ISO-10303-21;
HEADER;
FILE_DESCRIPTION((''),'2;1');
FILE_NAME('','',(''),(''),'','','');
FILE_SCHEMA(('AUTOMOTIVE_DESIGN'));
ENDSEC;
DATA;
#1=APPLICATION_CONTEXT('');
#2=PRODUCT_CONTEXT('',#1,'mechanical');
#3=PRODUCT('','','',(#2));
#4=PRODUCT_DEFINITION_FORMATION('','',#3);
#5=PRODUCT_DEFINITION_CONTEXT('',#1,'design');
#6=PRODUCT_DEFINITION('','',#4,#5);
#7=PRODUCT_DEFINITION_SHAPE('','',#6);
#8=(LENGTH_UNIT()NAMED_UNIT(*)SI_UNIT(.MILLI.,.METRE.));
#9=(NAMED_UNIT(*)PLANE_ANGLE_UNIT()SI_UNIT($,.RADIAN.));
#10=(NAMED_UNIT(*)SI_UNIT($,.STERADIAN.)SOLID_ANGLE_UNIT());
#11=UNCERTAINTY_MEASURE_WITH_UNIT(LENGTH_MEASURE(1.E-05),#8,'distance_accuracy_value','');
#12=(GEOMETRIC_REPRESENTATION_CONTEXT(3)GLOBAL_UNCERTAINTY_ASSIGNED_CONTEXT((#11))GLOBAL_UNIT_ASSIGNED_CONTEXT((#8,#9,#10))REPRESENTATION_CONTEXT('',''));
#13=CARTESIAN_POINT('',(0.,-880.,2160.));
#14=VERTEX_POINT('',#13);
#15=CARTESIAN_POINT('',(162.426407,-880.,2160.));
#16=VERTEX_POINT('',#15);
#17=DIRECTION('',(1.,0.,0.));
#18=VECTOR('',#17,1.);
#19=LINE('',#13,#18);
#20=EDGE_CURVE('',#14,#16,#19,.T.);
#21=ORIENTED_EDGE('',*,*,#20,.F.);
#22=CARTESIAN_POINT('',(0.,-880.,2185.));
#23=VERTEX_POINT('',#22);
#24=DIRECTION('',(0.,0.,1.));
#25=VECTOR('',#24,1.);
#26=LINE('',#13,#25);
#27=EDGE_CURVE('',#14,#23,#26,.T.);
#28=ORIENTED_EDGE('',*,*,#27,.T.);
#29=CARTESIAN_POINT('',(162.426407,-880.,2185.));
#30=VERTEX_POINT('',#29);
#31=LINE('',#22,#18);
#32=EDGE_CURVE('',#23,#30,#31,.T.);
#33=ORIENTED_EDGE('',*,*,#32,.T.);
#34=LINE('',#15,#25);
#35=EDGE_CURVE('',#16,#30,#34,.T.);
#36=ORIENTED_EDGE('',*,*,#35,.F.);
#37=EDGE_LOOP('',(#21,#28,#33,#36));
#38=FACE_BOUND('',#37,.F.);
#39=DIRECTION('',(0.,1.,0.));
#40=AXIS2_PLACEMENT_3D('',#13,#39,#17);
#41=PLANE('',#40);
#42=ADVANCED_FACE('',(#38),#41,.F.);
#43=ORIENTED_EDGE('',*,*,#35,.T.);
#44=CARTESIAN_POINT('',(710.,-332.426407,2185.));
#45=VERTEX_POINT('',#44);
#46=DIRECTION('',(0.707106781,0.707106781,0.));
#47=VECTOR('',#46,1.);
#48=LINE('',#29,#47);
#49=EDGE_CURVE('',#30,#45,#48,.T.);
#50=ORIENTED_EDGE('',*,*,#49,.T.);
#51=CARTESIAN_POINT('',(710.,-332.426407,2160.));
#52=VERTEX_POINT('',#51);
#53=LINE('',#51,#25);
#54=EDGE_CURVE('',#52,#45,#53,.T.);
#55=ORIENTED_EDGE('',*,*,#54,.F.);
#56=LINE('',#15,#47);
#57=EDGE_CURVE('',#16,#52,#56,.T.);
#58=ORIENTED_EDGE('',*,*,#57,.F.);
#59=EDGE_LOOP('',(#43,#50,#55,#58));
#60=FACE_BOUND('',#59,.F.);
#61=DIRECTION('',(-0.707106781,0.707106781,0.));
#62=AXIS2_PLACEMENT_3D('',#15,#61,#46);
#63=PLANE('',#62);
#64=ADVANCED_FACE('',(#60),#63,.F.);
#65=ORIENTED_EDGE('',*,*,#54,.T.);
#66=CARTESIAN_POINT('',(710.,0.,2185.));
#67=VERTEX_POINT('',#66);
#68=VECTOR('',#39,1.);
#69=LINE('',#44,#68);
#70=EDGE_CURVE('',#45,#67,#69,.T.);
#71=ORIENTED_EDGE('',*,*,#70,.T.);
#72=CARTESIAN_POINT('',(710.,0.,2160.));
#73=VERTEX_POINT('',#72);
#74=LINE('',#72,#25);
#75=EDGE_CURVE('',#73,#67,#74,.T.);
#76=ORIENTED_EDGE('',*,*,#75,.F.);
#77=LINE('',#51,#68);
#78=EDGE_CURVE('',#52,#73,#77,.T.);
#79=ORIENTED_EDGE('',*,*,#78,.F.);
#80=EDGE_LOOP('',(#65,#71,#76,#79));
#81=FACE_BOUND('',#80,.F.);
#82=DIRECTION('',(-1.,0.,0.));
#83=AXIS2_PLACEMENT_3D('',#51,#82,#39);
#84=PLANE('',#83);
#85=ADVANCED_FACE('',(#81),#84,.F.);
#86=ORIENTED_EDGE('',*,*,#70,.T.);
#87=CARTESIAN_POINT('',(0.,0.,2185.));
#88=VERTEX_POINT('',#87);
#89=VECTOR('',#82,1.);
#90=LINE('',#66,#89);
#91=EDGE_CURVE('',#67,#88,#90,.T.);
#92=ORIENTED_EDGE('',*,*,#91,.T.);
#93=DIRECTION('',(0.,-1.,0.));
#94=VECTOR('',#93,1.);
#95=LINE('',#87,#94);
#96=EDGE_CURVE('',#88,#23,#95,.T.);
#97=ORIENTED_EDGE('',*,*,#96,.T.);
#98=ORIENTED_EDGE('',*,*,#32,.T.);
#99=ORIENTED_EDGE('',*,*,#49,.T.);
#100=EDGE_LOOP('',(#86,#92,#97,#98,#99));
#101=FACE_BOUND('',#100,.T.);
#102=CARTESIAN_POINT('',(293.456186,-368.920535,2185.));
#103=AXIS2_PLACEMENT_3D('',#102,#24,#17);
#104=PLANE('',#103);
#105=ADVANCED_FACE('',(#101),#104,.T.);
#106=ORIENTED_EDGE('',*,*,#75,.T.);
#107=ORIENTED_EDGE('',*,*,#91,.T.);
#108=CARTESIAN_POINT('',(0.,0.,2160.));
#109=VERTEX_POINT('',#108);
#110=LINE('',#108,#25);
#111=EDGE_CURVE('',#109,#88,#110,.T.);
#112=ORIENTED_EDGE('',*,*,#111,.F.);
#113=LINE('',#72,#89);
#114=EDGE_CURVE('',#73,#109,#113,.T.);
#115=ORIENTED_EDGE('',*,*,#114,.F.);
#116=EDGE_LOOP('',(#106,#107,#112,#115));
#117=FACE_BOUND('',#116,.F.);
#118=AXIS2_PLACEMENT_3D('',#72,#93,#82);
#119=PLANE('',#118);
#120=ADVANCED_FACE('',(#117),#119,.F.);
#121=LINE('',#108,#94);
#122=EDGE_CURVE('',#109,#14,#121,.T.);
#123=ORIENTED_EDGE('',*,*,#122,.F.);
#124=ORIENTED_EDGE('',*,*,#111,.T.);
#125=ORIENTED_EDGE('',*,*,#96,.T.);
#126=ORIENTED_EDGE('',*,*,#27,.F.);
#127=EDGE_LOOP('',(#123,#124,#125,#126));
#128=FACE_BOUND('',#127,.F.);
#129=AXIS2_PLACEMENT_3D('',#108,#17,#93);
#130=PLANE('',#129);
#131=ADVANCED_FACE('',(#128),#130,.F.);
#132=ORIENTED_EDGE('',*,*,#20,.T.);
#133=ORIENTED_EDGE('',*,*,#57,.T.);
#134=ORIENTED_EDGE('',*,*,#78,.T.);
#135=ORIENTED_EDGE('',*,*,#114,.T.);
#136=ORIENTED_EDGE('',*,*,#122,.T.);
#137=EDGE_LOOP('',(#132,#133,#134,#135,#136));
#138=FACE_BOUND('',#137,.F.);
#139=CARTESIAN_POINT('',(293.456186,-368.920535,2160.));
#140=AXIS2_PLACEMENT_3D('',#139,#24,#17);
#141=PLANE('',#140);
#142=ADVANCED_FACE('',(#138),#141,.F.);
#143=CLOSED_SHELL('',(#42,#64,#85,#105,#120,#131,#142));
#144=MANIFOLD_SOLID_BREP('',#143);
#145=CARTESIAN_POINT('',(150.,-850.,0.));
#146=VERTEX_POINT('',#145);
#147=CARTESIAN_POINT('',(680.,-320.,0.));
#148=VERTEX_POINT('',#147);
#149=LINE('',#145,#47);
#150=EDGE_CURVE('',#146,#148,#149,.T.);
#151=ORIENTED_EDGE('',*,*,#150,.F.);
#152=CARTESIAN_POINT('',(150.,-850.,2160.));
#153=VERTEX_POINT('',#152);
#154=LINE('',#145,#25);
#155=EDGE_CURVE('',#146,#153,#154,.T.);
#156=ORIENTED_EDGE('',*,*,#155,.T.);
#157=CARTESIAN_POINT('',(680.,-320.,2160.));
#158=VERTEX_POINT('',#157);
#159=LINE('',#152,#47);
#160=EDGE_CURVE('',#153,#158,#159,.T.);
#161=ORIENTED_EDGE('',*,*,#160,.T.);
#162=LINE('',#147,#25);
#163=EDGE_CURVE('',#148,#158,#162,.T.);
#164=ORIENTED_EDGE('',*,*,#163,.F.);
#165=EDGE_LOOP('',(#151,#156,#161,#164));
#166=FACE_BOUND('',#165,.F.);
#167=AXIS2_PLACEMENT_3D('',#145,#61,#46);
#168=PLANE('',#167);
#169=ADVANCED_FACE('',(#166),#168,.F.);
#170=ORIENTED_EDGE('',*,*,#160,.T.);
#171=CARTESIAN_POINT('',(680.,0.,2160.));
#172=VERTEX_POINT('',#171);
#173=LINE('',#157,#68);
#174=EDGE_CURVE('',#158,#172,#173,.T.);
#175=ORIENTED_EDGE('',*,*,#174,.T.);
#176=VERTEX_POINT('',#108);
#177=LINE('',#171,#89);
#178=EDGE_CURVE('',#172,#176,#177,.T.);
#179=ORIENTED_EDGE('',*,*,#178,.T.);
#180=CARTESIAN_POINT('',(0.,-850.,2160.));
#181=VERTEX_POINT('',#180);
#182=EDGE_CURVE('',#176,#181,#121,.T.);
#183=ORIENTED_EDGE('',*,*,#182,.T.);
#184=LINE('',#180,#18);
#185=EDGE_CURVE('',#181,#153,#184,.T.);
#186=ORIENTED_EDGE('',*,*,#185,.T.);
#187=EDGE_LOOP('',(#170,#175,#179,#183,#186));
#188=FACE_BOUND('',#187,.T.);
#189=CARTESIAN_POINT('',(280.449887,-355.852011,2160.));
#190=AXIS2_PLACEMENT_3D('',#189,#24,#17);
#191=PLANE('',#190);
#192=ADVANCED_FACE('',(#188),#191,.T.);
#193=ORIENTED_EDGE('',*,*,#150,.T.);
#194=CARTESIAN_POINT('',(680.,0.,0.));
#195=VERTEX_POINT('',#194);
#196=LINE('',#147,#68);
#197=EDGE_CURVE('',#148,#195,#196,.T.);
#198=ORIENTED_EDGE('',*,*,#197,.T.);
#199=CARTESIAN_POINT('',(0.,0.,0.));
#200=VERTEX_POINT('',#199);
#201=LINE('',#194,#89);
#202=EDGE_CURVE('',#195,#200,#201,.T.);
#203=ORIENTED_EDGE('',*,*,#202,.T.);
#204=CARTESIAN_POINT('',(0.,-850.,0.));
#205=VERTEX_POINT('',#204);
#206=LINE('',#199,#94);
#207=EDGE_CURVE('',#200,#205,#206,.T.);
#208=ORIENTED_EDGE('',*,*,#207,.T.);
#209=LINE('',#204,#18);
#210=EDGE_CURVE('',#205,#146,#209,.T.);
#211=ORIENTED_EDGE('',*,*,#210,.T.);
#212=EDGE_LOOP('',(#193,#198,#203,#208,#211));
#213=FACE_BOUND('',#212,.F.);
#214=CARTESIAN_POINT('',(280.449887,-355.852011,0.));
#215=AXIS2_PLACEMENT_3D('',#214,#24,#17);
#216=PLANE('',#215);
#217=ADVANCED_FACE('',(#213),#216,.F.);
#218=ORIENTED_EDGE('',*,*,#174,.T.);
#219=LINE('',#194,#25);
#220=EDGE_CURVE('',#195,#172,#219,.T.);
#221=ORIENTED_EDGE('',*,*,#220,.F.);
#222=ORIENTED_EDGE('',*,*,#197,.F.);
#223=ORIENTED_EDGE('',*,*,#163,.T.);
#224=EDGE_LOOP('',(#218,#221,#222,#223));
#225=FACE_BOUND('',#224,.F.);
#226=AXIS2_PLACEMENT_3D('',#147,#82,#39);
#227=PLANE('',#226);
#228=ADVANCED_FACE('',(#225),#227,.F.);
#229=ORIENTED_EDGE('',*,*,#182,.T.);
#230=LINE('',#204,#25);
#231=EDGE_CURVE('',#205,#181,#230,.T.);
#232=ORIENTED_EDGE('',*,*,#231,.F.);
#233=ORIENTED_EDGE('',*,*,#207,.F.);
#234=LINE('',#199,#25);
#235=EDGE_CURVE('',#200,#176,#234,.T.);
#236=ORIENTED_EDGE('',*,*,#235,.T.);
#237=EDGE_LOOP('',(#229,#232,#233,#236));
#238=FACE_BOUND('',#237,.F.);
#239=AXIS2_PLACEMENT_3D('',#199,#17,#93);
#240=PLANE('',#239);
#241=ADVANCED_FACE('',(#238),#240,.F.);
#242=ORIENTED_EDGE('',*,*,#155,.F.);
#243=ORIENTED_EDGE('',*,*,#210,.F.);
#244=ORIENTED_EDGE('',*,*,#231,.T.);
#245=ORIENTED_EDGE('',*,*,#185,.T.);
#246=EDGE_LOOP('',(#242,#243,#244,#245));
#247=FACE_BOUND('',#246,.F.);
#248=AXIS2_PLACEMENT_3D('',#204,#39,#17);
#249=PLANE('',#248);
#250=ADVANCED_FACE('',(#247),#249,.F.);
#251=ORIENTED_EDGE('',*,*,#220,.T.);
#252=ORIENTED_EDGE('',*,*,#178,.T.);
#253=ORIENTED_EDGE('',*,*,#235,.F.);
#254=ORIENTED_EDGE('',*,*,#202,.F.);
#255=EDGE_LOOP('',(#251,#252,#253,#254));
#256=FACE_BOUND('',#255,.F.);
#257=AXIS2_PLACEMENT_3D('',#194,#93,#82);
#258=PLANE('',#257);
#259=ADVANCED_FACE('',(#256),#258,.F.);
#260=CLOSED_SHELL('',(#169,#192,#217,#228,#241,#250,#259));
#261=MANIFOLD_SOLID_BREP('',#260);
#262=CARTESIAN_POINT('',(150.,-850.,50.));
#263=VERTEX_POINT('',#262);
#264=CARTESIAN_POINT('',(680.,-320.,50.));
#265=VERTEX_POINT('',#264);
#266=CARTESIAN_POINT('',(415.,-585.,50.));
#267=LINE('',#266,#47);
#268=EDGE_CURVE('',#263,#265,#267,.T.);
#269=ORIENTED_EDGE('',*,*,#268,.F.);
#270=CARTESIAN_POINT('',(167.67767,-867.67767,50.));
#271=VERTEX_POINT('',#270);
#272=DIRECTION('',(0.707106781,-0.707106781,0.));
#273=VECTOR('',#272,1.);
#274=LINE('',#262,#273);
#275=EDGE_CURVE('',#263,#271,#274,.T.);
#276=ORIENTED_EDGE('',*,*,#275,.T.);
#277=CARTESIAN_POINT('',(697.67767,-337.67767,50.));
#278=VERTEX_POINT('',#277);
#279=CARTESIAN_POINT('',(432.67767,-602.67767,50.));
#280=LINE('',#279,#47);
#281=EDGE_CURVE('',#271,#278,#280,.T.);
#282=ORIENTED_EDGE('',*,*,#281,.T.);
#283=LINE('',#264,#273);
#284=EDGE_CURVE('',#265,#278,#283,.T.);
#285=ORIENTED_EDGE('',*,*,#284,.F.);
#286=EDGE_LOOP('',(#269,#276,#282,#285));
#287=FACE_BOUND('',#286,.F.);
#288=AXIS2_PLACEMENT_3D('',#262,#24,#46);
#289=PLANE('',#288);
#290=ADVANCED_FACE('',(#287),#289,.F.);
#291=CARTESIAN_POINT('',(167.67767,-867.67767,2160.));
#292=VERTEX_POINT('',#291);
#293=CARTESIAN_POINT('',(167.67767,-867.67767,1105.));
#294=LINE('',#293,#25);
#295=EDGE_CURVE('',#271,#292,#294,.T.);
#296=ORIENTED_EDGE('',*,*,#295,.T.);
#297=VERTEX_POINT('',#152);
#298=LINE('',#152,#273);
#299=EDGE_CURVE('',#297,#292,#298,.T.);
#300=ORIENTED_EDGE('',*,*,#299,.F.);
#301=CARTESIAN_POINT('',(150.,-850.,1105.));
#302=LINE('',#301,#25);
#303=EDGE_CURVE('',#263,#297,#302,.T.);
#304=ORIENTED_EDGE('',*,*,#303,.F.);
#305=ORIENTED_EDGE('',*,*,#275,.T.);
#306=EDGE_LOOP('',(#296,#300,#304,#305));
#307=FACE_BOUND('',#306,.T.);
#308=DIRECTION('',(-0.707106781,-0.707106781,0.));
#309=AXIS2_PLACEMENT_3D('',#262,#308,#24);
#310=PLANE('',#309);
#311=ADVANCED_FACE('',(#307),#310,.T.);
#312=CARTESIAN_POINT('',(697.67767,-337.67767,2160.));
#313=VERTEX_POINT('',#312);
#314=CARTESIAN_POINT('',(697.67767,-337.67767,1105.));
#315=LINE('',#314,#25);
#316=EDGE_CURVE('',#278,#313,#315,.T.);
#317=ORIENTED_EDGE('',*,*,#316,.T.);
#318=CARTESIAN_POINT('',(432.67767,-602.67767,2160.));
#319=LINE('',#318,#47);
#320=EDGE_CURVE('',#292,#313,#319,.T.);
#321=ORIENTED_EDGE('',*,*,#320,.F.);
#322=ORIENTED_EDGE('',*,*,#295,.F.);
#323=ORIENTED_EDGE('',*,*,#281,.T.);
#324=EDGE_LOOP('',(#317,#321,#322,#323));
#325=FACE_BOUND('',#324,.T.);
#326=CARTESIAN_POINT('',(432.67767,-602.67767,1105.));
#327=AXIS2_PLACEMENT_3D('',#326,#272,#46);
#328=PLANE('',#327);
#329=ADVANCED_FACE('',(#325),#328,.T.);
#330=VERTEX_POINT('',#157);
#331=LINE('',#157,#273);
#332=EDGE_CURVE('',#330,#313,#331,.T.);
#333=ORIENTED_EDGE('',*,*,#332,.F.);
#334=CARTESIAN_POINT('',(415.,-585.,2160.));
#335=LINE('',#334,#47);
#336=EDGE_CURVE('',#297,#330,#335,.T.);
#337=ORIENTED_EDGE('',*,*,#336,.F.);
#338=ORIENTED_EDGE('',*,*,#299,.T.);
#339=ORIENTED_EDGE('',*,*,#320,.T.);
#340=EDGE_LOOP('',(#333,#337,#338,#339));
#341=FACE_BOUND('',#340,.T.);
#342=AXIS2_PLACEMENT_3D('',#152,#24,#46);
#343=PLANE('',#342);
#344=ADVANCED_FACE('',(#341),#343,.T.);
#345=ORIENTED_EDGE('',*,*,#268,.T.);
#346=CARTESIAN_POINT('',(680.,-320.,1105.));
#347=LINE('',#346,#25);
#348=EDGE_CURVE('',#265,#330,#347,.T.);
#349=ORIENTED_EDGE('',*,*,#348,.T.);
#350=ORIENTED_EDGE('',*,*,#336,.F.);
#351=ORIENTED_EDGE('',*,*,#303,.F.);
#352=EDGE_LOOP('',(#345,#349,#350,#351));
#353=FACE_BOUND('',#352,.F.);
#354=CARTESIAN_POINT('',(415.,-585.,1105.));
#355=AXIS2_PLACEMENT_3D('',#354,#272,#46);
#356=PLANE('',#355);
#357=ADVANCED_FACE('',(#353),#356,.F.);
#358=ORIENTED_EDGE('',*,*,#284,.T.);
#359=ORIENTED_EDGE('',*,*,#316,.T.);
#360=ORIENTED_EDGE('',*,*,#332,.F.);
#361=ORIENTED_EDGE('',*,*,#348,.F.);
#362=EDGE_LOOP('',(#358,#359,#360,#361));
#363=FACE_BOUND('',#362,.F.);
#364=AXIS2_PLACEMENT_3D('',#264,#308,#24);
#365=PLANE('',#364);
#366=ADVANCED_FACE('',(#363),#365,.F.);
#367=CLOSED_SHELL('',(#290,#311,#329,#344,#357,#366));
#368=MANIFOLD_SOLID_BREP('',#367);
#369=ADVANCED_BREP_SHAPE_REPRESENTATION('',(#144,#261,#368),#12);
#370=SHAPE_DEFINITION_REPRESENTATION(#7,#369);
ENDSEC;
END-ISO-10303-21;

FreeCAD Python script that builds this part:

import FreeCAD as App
import Part
import Sketcher
Q = App.Units.Quantity


def add_polygon(sketch, points):
    """Adds a closed chain of lines whose ends are joined by coincident constraints."""
    first, n = sketch.GeometryCount, len(points)
    for a, b in zip(points, points[1:] + points[:1]):
        sketch.addGeometry(Part.LineSegment(App.Vector(*a, 0), App.Vector(*b, 0)), False)
    for i in range(n):
        sketch.addConstraint(Sketcher.Constraint("Coincident", first + i, 2, first + (i + 1) % n, 1))

doc = App.newDocument("Part")
body = doc.addObject("PartDesign::Body", "Body")

sketch1 = body.newObject("Sketcher::SketchObject", "Sketch")
sketch1.AttachmentSupport = (doc.getObject("XY_Plane"), [""])
sketch1.MapMode = "FlatFace"
add_polygon(sketch1, [(680, 0), (0, 0), (0, -850), (150, -850), (680, -320)])
sketch1.addConstraint([
    Sketcher.Constraint("Horizontal", 0),
    Sketcher.Constraint("Vertical", 1),
    Sketcher.Constraint("Horizontal", 2),
    Sketcher.Constraint("Vertical", 4),
    Sketcher.Constraint("Coincident", 0, 2, -1, 1),
    Sketcher.Constraint("DistanceX", 0, 2, 0, 1, 680.0),
    Sketcher.Constraint("DistanceX", 2, 1, 2, 2, 150.0),
    Sketcher.Constraint("DistanceY", 1, 2, 1, 1, 850.0),
    Sketcher.Constraint("DistanceY", 4, 1, 4, 2, 320.0),
])
pad1 = body.newObject("PartDesign::Pad", "Pad")
pad1.Profile = sketch1
pad1.Length = 2160
body2 = doc.addObject("PartDesign::Body", "Body001")

sketch2 = body2.newObject("Sketcher::SketchObject", "Sketch001")
sketch2.Placement = App.Placement(App.Vector(500, -500, 0), App.Rotation(App.Vector(0.707106781, 0.707106781, 0), App.Vector(0, 0, 0.999999999), App.Vector(0.707106781, -0.707106781, 0), "ZXY"))
add_polygon(sketch2, [(-495, 2160), (-495, 50), (255, 50), (255, 2160)])
sketch2.addConstraint([
    Sketcher.Constraint("Vertical", 0),
    Sketcher.Constraint("Horizontal", 1),
    Sketcher.Constraint("Vertical", 2),
    Sketcher.Constraint("Horizontal", 3),
    Sketcher.Constraint("DistanceY", -1, 1, 0, 2, 50.0),
    Sketcher.Constraint("DistanceX", 1, 1, 1, 2, 749.533188),
    Sketcher.Constraint("DistanceY", 0, 2, 0, 1, 2109.999998),
    Sketcher.Constraint("DistanceX", -1, 1, 1, 2, 254.558441),
])
pad2 = body2.newObject("PartDesign::Pad", "Pad001")
pad2.Profile = sketch2
pad2.Length = 25
body3 = doc.addObject("PartDesign::Body", "Body002")

sketch3 = body3.newObject("Sketcher::SketchObject", "Sketch002")
sketch3.AttachmentSupport = (doc.getObject("XY_Plane002"), [""])
sketch3.MapMode = "FlatFace"
sketch3.AttachmentOffset = App.Placement(App.Vector(0, 0, 2160), App.Rotation())
add_polygon(sketch3, [(162, -880), (710, -332), (710, 0), (0, 0), (0, -880)])
sketch3.addConstraint([
    Sketcher.Constraint("Vertical", 1),
    Sketcher.Constraint("Horizontal", 2),
    Sketcher.Constraint("Vertical", 3),
    Sketcher.Constraint("Horizontal", 4),
    Sketcher.Constraint("Coincident", 2, 2, -1, 1),
    Sketcher.Constraint("DistanceX", 2, 2, 2, 1, 710.0),
    Sketcher.Constraint("DistanceY", 3, 2, 3, 1, 880.0),
    Sketcher.Constraint("Angle", 0, Q("45 deg")),
    Sketcher.Constraint("Distance", 0, 774.386002),
])
pad3 = body3.newObject("PartDesign::Pad", "Pad002")
pad3.Profile = sketch3
pad3.Length = 25

doc.recompute()
